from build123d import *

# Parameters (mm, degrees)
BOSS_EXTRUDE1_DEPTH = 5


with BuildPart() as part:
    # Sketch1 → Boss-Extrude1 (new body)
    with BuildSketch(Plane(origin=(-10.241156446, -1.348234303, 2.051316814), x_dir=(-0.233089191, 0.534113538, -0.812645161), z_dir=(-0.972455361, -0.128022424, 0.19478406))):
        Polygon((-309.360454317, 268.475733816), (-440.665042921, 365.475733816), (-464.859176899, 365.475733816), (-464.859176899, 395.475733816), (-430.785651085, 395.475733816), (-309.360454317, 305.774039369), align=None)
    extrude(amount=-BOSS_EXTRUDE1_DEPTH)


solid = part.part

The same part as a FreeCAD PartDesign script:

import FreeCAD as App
import Part
import Sketcher

V = App.Vector


def add_polygon(sketch, points):
    """Adds a closed chain of lines whose ends are joined by coincident constraints."""
    first, n = sketch.GeometryCount, len(points)
    for a, b in zip(points, points[1:] + points[:1]):
        sketch.addGeometry(Part.LineSegment(App.Vector(*a, 0), App.Vector(*b, 0)), False)
    for i in range(n):
        sketch.addConstraint(Sketcher.Constraint("Coincident", first + i, 2, first + (i + 1) % n, 1))

doc = App.newDocument("Part")
params = doc.addObject("Spreadsheet::Sheet", "Params")
for row, (alias, value) in enumerate([
    ("sketch1_height", "30 mm"),
    ("pad1_length", "5 mm"),
], start=1):
    params.set(f"A{row}", alias)
    params.set(f"B{row}", "=" + value)
    params.setAlias(f"B{row}", alias)

body = doc.addObject("PartDesign::Body", "Body")

# Sketch on an angled plane
sketch1 = doc.addObject("Sketcher::SketchObject", "Sketch")
body.addObject(sketch1)
sketch1.Placement = App.Placement(V(-10.241156, -1.348234, 2.051317), App.Rotation(V(-0.233089191, 0.534113538, -0.812645161), V(0, -0.835663202, -0.549242217), V(-0.972455361, -0.128022424, 0.19478406), "ZXY"))
add_polygon(sketch1, [(-441, 365), (-309, 268), (-309, 306), (-431, 395), (-465, 395), (-465, 365)])  # lines 0-5
sketch1.addConstraint(Sketcher.Constraint("Vertical", 1))
sketch1.addConstraint(Sketcher.Constraint("Horizontal", 3))
sketch1.addConstraint(Sketcher.Constraint("Vertical", 4))
sketch1.addConstraint(Sketcher.Constraint("Horizontal", 5))
sketch1.addConstraint(Sketcher.Constraint("Parallel", 0, 2))
sketch1.addConstraint(Sketcher.Constraint("DistanceY", 4, 2, 4, 1, 30.0))
sketch1.addConstraint(Sketcher.Constraint("DistanceY", 0, 2, 2, 2, 127.0))
sketch1.addConstraint(Sketcher.Constraint("DistanceX", 3, 2, 3, 1, 34.073526))
sketch1.addConstraint(Sketcher.Constraint("DistanceX", 5, 1, 5, 2, 24.194134))
sketch1.addConstraint(Sketcher.Constraint("DistanceY", 1, 1, 1, 2, 37.298306))
sketch1.addConstraint(Sketcher.Constraint("DistanceY", -1, 1, 1, 2, 305.774039))
sketch1.addConstraint(Sketcher.Constraint("DistanceX", 2, 2, -1, 1, 430.785651))
sketch1.setExpression("Constraints[11]", "Params.sketch1_height")
pad1 = doc.addObject("PartDesign::Pad", "Pad")
body.addObject(pad1)
pad1.Profile = sketch1
pad1.setExpression("Length", "Params.pad1_length")
pad1.Reversed = True

doc.recompute()
